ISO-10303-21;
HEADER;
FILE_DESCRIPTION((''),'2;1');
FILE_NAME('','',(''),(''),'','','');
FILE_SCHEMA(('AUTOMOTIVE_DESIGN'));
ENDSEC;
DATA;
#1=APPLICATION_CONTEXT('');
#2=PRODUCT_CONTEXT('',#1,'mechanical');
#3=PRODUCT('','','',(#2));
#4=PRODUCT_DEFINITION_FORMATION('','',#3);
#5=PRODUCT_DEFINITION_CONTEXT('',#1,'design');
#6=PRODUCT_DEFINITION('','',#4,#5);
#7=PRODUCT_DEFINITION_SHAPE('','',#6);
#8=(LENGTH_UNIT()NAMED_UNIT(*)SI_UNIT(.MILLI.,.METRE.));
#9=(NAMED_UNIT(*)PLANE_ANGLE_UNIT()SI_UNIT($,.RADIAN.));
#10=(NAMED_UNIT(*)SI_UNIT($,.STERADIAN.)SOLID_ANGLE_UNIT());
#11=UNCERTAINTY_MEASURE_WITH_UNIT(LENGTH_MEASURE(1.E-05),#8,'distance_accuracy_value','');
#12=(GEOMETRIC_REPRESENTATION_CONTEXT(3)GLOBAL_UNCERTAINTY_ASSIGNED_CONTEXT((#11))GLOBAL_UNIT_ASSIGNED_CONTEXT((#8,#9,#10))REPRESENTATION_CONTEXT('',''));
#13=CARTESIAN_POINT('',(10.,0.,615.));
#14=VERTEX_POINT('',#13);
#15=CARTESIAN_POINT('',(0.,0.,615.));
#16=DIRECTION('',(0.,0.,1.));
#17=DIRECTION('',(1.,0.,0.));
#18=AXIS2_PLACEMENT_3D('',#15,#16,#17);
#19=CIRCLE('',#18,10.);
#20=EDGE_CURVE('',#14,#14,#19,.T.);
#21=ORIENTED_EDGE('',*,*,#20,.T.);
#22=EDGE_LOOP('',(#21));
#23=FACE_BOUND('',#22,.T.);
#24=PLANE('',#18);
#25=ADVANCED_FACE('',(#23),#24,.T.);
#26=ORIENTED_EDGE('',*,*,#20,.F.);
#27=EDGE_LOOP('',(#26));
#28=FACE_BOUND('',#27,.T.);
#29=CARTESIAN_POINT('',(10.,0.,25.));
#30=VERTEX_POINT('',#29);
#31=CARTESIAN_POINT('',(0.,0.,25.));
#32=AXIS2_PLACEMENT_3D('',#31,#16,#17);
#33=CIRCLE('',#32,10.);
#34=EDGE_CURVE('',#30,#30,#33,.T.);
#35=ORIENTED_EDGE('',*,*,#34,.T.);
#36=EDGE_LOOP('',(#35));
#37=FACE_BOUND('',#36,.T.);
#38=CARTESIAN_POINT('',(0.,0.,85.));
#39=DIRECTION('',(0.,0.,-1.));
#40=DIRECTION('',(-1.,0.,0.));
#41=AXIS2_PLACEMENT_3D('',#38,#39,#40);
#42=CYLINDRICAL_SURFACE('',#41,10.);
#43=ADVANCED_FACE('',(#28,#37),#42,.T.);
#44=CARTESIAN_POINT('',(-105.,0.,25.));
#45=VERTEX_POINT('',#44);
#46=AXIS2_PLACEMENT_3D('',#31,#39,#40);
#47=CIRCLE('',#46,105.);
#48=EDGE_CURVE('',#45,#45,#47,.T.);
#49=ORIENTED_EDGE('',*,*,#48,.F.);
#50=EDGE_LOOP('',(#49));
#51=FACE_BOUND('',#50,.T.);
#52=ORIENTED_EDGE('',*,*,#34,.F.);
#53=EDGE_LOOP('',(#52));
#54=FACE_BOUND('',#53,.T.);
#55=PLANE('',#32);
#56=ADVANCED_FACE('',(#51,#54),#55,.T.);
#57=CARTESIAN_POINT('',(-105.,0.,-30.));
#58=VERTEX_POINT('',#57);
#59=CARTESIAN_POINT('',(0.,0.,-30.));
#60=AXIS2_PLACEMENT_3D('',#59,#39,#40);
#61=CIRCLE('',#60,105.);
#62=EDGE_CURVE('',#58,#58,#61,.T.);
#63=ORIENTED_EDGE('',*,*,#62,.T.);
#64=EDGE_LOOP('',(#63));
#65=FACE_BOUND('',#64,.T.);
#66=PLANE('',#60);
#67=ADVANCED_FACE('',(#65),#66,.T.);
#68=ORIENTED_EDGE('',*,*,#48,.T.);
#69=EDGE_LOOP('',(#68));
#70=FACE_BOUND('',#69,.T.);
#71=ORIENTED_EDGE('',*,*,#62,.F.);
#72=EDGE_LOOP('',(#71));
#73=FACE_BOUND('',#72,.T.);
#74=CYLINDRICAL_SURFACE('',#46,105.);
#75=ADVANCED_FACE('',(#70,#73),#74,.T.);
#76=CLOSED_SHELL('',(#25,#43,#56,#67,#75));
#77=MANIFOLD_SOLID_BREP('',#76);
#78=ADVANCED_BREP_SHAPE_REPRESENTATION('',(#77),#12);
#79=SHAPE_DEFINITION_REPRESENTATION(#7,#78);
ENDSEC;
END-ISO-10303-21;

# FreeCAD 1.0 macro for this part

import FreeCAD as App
import Part
import Sketcher

V = App.Vector
Q = App.Units.Quantity


def edges_at(feature, points):
    """Names of the edges that pass closest to the given points."""
    edges = feature.Shape.Edges
    near = lambda p: min(range(len(edges)), key=lambda i: edges[i].distToShape(Part.Vertex(*p))[0])
    return sorted({f"Edge{near(p) + 1}" for p in points})

doc = App.newDocument("Part")
body = doc.addObject("PartDesign::Body", "Body")

sketch1 = body.newObject("Sketcher::SketchObject", "Sketch")
sketch1.AttachmentSupport = (doc.getObject("XY_Plane"), [""])
sketch1.MapMode = "FlatFace"
sketch1.addGeometry(Part.Circle(V(0, 0, 0), V(0, 0, 1), 88), False)
sketch1.addConstraint(Sketcher.Constraint("Coincident", 0, 3, -1, 1))
sketch1.addConstraint(Sketcher.Constraint("Diameter", 0, Q("176 mm")))
pad1 = body.newObject("PartDesign::Pad", "Pad")
pad1.Profile = sketch1
pad1.Length = 25

sketch2 = body.newObject("Sketcher::SketchObject", "Sketch001")
sketch2.AttachmentSupport = (doc.getObject("XY_Plane"), [""])
sketch2.MapMode = "FlatFace"
sketch2.AttachmentOffset = App.Placement(V(0, 0, 25), App.Rotation())
sketch2.addGeometry(Part.LineSegment(V(-5.23595, 100, 0), V(-5.23595, 86.648836, 0)), False)
sketch2.addGeometry(Part.LineSegment(V(-5.23595, 86.648836, 0), V(5.23595, 86.648836, 0)), False)
sketch2.addGeometry(Part.LineSegment(V(5.23595, 86.648836, 0), V(5.23595, 100, 0)), False)
sketch2.addGeometry(Part.LineSegment(V(5.23595, 100, 0), V(-5.23595, 100, 0)), False)
sketch2.addConstraint(Sketcher.Constraint("Coincident", 0, 2, 1, 1))
sketch2.addConstraint(Sketcher.Constraint("Coincident", 1, 2, 2, 1))
sketch2.addConstraint(Sketcher.Constraint("Coincident", 2, 2, 3, 1))
sketch2.addConstraint(Sketcher.Constraint("Coincident", 3, 2, 0, 1))
sketch2.addConstraint(Sketcher.Constraint("Vertical", 0))
sketch2.addConstraint(Sketcher.Constraint("Horizontal", 1))
sketch2.addConstraint(Sketcher.Constraint("Vertical", 2))
sketch2.addConstraint(Sketcher.Constraint("Horizontal", 3))
sketch2.addConstraint(Sketcher.Constraint("DistanceY", -1, 1, 2, 2, Q("100 mm")))
sketch2.addConstraint(Sketcher.Constraint("DistanceX", 1, 1, 1, 2, Q("10.4719 mm")))
sketch2.addConstraint(Sketcher.Constraint("DistanceY", 0, 2, 0, 1, Q("13.351164 mm")))
sketch2.addConstraint(Sketcher.Constraint("DistanceX", 0, 2, -1, 1, Q("5.23595 mm")))
pad2 = body.newObject("PartDesign::Pad", "Pad001")
pad2.Profile = sketch2
pad2.Length = 25
pad2.Reversed = True
doc.recompute()

fillet = body.newObject("PartDesign::Fillet", "Fillet")
fillet.Base = (pad2, edges_at(pad2, [
    (5.236, 100, 12.5),
    (0, 100, 0),
    (-5.236, 100, 12.5),
    (0, 100, 25),
]))
fillet.Radius = 4
doc.recompute()

datumline = body.newObject("PartDesign::Line", "DatumLine")
datumline.Placement = App.Placement(V(0, 0.317668, 0), App.Rotation(V(0, 0, 1), V(0, 0, 1)))
polarpattern = body.newObject("PartDesign::PolarPattern", "PolarPattern")
polarpattern.Originals = [pad2]
polarpattern.Axis = (datumline, [""])
polarpattern.Angle = 360
polarpattern.Occurrences = 30
body.Tip = polarpattern
doc.recompute()

fillet2 = body.newObject("PartDesign::Fillet", "Fillet001")
fillet2.Base = (polarpattern, edges_at(polarpattern, [
    (-15.604, 98.91, 12.5),
    (-20.725, 97.822, 0),
    (-25.847, 96.733, 12.5),
    (-20.725, 97.822, 25),
    (-35.761, 93.512, 12.5),
    (-40.544, 91.382, 0),
    (-45.328, 89.252, 12.5),
    (-40.544, 91.382, 25),
    (-54.356, 84.04, 12.5),
    (-58.592, 80.962, 0),
    (-62.828, 77.885, 12.5),
    (-58.592, 80.962, 25),
    (-70.575, 70.909, 12.5),
    (-74.078, 67.018, 0),
    (-77.582, 63.127, 12.5),
    (-74.078, 67.018, 25),
    (-83.709, 54.693, 12.5),
    (-86.327, 50.159, 0),
    (-88.945, 45.624, 12.5),
    (-86.327, 50.159, 25),
    (-93.186, 36.101, 12.5),
    (-94.804, 31.121, 0),
    (-96.422, 26.142, 12.5),
    (-94.804, 31.121, 25),
    (-98.589, 15.945, 12.5),
    (-99.136, 10.737, 0),
    (-99.684, 5.53, 12.5),
    (-99.136, 10.737, 25),
    (-99.684, -4.895, 12.5),
    (-99.136, -10.102, 0),
    (-98.589, -15.309, 12.5),
    (-99.136, -10.102, 25),
    (-96.422, -25.506, 12.5),
    (-94.804, -30.486, 0),
    (-93.186, -35.466, 12.5),
    (-94.804, -30.486, 25),
    (-88.945, -44.989, 12.5),
    (-86.327, -49.523, 0),
    (-83.709, -54.058, 12.5),
    (-86.327, -49.523, 25),
    (-77.582, -62.492, 12.5),
    (-74.078, -66.383, 0),
    (-70.575, -70.274, 12.5),
    (-74.078, -66.383, 25),
    (-62.828, -77.249, 12.5),
    (-58.592, -80.327, 0),
    (-54.356, -83.405, 12.5),
    (-58.592, -80.327, 25),
    (-45.328, -88.617, 12.5),
    (-40.544, -90.747, 0),
    (-35.761, -92.876, 12.5),
    (-40.544, -90.747, 25),
    (-25.847, -96.098, 12.5),
    (-20.725, -97.186, 0),
    (-15.604, -98.275, 12.5),
    (-20.725, -97.186, 25),
    (-5.236, -99.365, 12.5),
    (0, -99.365, 0),
    (5.236, -99.365, 12.5),
    (0, -99.365, 25),
    (15.604, -98.275, 12.5),
    (20.725, -97.186, 0),
    (25.847, -96.098, 12.5),
    (20.725, -97.186, 25),
    (35.761, -92.876, 12.5),
    (40.544, -90.747, 0),
    (45.328, -88.617, 12.5),
    (40.544, -90.747, 25),
    (54.356, -83.405, 12.5),
    (58.592, -80.327, 0),
    (62.828, -77.249, 12.5),
    (58.592, -80.327, 25),
    (70.575, -70.274, 12.5),
    (74.078, -66.383, 0),
    (77.582, -62.492, 12.5),
    (74.078, -66.383, 25),
    (83.709, -54.058, 12.5),
    (86.327, -49.523, 0),
    (88.945, -44.989, 12.5),
    (86.327, -49.523, 25),
    (93.186, -35.466, 12.5),
    (94.804, -30.486, 0),
    (96.422, -25.506, 12.5),
    (94.804, -30.486, 25),
    (98.589, -15.309, 12.5),
    (99.136, -10.102, 0),
    (99.684, -4.895, 12.5),
    (99.136, -10.102, 25),
    (99.684, 5.53, 12.5),
    (99.136, 10.737, 0),
    (98.589, 15.945, 12.5),
    (99.136, 10.737, 25),
    (96.422, 26.142, 12.5),
    (94.804, 31.121, 0),
    (93.186, 36.101, 12.5),
    (94.804, 31.121, 25),
    (88.945, 45.624, 12.5),
    (86.327, 50.159, 0),
    (83.709, 54.693, 12.5),
    (86.327, 50.159, 25),
    (77.582, 63.127, 12.5),
    (74.078, 67.018, 0),
    (70.575, 70.909, 12.5),
    (74.078, 67.018, 25),
    (62.828, 77.885, 12.5),
    (58.592, 80.962, 0),
    (54.356, 84.04, 12.5),
    (58.592, 80.962, 25),
    (45.328, 89.252, 12.5),
    (40.544, 91.382, 0),
    (35.761, 93.512, 12.5),
    (40.544, 91.382, 25),
    (25.847, 96.733, 12.5),
    (20.725, 97.822, 0),
    (15.604, 98.91, 12.5),
    (20.725, 97.822, 25),
]))
fillet2.Radius = 4

sketch3 = body.newObject("Sketcher::SketchObject", "Sketch002")
sketch3.AttachmentSupport = (doc.getObject("XY_Plane"), [""])
sketch3.MapMode = "FlatFace"
sketch3.AttachmentOffset = App.Placement(V(0, 0, 25), App.Rotation())
sketch3.addGeometry(Part.Circle(V(0, 0, 0), V(0, 0, 1), 10), False)
sketch3.addConstraint(Sketcher.Constraint("Coincident", 0, 3, -1, 1))
sketch3.addConstraint(Sketcher.Constraint("Diameter", 0, Q("20 mm")))
pad3 = body.newObject("PartDesign::Pad", "Pad002")
pad3.Profile = sketch3
pad3.Length = 60

sketch4 = body.newObject("Sketcher::SketchObject", "Sketch003")
sketch4.AttachmentSupport = (doc.getObject("XY_Plane"), [""])
sketch4.MapMode = "FlatFace"
sketch4.AttachmentOffset = App.Placement(V(0, 0, -10), App.Rotation())
sketch4.addGeometry(Part.Circle(V(0, 0, 0), V(0, 0, 1), 10), False)
sketch4.addConstraint(Sketcher.Constraint("Coincident", 0, 3, -1, 1))
sketch4.addConstraint(Sketcher.Constraint("Diameter", 0, Q("20 mm")))
pad4 = body.newObject("PartDesign::Pad", "Pad003")
pad4.Profile = sketch4
pad4.Length = 10

sketch5 = body.newObject("Sketcher::SketchObject", "Sketch004")
sketch5.AttachmentSupport = (doc.getObject("XY_Plane"), [""])
sketch5.MapMode = "FlatFace"
sketch5.AttachmentOffset = App.Placement(V(0, 0, 85), App.Rotation())
sketch5.addGeometry(Part.Circle(V(0, 0, 0), V(0, 0, 1), 10), False)
sketch5.addConstraint(Sketcher.Constraint("Coincident", 0, 3, -1, 1))
sketch5.addConstraint(Sketcher.Constraint("Diameter", 0, Q("20 mm")))
pad5 = body.newObject("PartDesign::Pad", "Pad004")
pad5.Profile = sketch5
pad5.Length = 10

sketch6 = body.newObject("Sketcher::SketchObject", "Sketch005")
sketch6.AttachmentSupport = (doc.getObject("XY_Plane"), [""])
sketch6.MapMode = "FlatFace"
sketch6.AttachmentOffset = App.Placement(V(0, 0, 95), App.Rotation())
sketch6.addGeometry(Part.Circle(V(0, 0, 0), V(0, 0, 1), 10), False)
sketch6.addConstraint(Sketcher.Constraint("Coincident", 0, 3, -1, 1))
sketch6.addConstraint(Sketcher.Constraint("Diameter", 0, Q("20 mm")))
pad6 = body.newObject("PartDesign::Pad", "Pad005")
pad6.Profile = sketch6
pad6.Length = 25

sketch7 = body.newObject("Sketcher::SketchObject", "Sketch006")
sketch7.AttachmentSupport = (doc.getObject("XY_Plane"), [""])
sketch7.MapMode = "FlatFace"
sketch7.AttachmentOffset = App.Placement(V(0, 0, 120), App.Rotation())
sketch7.addGeometry(Part.Circle(V(0, 0, 0), V(0, 0, 1), 10), False)
sketch7.addConstraint(Sketcher.Constraint("Coincident", 0, 3, -1, 1))
sketch7.addConstraint(Sketcher.Constraint("Diameter", 0, Q("20 mm")))
pad7 = body.newObject("PartDesign::Pad", "Pad006")
pad7.Profile = sketch7
pad7.Length = 42.5

sketch8 = body.newObject("Sketcher::SketchObject", "Sketch007")
sketch8.AttachmentSupport = (doc.getObject("XY_Plane"), [""])
sketch8.MapMode = "FlatFace"
sketch8.AttachmentOffset = App.Placement(V(0, 0, 162.5), App.Rotation())
sketch8.addGeometry(Part.Circle(V(0, 0, 0), V(0, 0, 1), 12.5), False)
sketch8.addConstraint(Sketcher.Constraint("Coincident", 0, 3, -1, 1))
sketch8.addConstraint(Sketcher.Constraint("Diameter", 0, Q("25 mm")))
pocket1 = body.newObject("PartDesign::Pocket", "Pocket")
pocket1.Profile = sketch8
pocket1.Length = 12

sketch9 = body.newObject("Sketcher::SketchObject", "Sketch008")
sketch9.AttachmentSupport = (doc.getObject("XY_Plane"), [""])
sketch9.MapMode = "FlatFace"
sketch9.AttachmentOffset = App.Placement(V(0, 0, 95), App.Rotation())
sketch9.addGeometry(Part.Circle(V(0, 0, 0), V(0, 0, 1), 10), False)
sketch9.addConstraint(Sketcher.Constraint("Coincident", 0, 3, -1, 1))
sketch9.addConstraint(Sketcher.Constraint("Diameter", 0, Q("20 mm")))
pocket2 = body.newObject("PartDesign::Pocket", "Pocket001")
pocket2.Profile = sketch9
pocket2.Length = 55.5
pocket2.Reversed = True

sketch10 = body.newObject("Sketcher::SketchObject", "Sketch009")
sketch10.AttachmentSupport = (doc.getObject("XY_Plane"), [""])
sketch10.MapMode = "FlatFace"
sketch10.AttachmentOffset = App.Placement(V(0, 0, 95), App.Rotation())
sketch10.addGeometry(Part.Circle(V(0, 0, 0), V(0, 0, 1), 10), False)
sketch10.addConstraint(Sketcher.Constraint("Coincident", 0, 3, -1, 1))
sketch10.addConstraint(Sketcher.Constraint("Diameter", 0, Q("20 mm")))
pad8 = body.newObject("PartDesign::Pad", "Pad007")
pad8.Profile = sketch10
pad8.Length = 440

sketch11 = body.newObject("Sketcher::SketchObject", "Sketch010")
sketch11.AttachmentSupport = (doc.getObject("XY_Plane"), [""])
sketch11.MapMode = "FlatFace"
sketch11.addGeometry(Part.Circle(V(0, 0, 0), V(0, 0, 1), 105), False)
sketch11.addConstraint(Sketcher.Constraint("Coincident", 0, 3, -1, 1))
sketch11.addConstraint(Sketcher.Constraint("Diameter", 0, Q("210 mm")))
pad9 = body.newObject("PartDesign::Pad", "Pad008")
pad9.Profile = sketch11
pad9.Length = 25

sketch12 = body.newObject("Sketcher::SketchObject", "Sketch011")
sketch12.AttachmentSupport = (doc.getObject("XY_Plane"), [""])
sketch12.MapMode = "FlatFace"
sketch12.AttachmentOffset = App.Placement(V(0, 0, -30), App.Rotation())
sketch12.addGeometry(Part.Circle(V(0, 0, 0), V(0, 0, 1), 105), False)
sketch12.addConstraint(Sketcher.Constraint("Coincident", 0, 3, -1, 1))
sketch12.addConstraint(Sketcher.Constraint("Diameter", 0, Q("210 mm")))
pad10 = body.newObject("PartDesign::Pad", "Pad009")
pad10.Profile = sketch12
pad10.Length = 30

sketch13 = body.newObject("Sketcher::SketchObject", "Sketch012")
sketch13.AttachmentSupport = (doc.getObject("XY_Plane"), [""])
sketch13.MapMode = "FlatFace"
sketch13.AttachmentOffset = App.Placement(V(0, 0, 535), App.Rotation())
sketch13.addGeometry(Part.Circle(V(0, 0, 0), V(0, 0, 1), 10), False)
sketch13.addConstraint(Sketcher.Constraint("Coincident", 0, 3, -1, 1))
sketch13.addConstraint(Sketcher.Constraint("Diameter", 0, Q("20 mm")))
pad11 = body.newObject("PartDesign::Pad", "Pad010")
pad11.Profile = sketch13
pad11.Length = 50

sketch14 = body.newObject("Sketcher::SketchObject", "Sketch013")
sketch14.AttachmentSupport = (doc.getObject("XY_Plane"), [""])
sketch14.MapMode = "FlatFace"
sketch14.AttachmentOffset = App.Placement(V(0, 0, 585), App.Rotation())
sketch14.addGeometry(Part.Circle(V(0, 0, 0), V(0, 0, 1), 10), False)
sketch14.addConstraint(Sketcher.Constraint("Coincident", 0, 3, -1, 1))
sketch14.addConstraint(Sketcher.Constraint("Diameter", 0, Q("20 mm")))
pad12 = body.newObject("PartDesign::Pad", "Pad011")
pad12.Profile = sketch14
pad12.Length = 30

doc.recompute()
